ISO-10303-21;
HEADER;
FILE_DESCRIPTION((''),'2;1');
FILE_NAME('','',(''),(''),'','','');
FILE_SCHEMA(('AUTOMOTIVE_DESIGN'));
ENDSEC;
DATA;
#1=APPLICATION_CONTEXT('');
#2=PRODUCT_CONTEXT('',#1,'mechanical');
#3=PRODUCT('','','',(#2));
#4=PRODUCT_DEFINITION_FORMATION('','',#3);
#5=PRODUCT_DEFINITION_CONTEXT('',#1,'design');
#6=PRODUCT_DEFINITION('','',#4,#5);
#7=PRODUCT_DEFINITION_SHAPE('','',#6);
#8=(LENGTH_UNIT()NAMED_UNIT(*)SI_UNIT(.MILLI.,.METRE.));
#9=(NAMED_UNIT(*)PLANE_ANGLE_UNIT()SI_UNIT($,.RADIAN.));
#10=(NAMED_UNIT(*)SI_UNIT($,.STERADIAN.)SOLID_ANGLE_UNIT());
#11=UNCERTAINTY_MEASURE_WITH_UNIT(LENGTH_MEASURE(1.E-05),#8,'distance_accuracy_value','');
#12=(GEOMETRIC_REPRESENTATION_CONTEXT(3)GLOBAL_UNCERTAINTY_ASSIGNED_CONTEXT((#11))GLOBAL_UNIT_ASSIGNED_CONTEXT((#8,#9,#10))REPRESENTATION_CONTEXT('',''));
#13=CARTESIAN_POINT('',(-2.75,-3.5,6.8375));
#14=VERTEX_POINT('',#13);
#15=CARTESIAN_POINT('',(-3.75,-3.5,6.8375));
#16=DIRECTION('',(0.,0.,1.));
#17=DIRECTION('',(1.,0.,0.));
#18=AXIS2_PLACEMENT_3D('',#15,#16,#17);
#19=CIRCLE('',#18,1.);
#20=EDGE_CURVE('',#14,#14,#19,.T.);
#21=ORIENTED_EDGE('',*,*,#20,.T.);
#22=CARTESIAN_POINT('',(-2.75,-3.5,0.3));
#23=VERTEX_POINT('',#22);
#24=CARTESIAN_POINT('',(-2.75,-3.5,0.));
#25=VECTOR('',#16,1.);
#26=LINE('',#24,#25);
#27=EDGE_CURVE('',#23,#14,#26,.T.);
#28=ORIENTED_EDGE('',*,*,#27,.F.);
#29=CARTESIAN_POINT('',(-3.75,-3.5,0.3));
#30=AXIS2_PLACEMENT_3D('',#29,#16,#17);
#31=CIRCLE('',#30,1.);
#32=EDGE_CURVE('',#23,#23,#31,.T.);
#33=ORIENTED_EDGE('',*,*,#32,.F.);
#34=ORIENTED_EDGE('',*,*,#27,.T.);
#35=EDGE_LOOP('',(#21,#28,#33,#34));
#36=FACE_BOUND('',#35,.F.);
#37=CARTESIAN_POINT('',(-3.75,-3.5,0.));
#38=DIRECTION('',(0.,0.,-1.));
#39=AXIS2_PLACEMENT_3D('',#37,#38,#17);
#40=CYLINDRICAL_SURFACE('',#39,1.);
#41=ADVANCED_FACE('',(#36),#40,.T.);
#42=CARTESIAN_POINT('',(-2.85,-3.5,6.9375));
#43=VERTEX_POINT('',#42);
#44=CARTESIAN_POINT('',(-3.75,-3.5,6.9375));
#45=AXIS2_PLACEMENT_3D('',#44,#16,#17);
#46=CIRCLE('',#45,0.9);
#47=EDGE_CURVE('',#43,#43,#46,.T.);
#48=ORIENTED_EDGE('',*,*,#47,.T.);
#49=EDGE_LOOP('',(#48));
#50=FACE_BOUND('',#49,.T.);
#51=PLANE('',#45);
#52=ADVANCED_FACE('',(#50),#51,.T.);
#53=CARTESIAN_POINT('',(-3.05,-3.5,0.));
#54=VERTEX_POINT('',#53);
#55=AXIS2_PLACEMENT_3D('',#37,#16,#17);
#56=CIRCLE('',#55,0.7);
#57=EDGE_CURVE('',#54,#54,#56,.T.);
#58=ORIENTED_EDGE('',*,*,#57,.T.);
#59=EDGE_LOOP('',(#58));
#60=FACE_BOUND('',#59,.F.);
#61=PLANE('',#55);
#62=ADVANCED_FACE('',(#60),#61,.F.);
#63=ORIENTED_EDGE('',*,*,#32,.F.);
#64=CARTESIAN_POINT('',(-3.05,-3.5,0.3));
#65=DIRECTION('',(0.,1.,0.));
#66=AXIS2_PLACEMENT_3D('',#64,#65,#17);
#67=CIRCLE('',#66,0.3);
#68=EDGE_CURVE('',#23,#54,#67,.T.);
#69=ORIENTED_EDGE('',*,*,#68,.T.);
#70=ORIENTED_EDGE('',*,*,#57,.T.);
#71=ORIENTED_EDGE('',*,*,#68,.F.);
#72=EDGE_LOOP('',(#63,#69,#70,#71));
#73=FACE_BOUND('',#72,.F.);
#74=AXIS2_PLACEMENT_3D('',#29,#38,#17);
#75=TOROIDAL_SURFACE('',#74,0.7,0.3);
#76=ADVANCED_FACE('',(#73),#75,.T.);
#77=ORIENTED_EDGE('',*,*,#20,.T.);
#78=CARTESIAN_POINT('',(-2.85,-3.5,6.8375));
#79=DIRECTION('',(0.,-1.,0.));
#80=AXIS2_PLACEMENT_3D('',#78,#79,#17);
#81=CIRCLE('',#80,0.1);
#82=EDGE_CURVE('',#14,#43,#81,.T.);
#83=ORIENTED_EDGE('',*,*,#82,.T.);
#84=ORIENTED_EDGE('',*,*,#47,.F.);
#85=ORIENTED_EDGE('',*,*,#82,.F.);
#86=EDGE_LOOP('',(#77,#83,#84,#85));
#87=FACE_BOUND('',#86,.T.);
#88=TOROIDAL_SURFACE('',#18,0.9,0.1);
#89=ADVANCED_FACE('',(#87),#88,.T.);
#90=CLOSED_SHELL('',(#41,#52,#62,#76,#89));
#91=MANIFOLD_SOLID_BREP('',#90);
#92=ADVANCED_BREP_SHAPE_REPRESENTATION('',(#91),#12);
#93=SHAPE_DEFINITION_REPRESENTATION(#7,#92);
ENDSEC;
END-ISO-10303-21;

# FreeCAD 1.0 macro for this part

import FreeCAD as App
import Part
import Sketcher
from FreeCAD import Vector
Q = App.Units.Quantity


def edges_at(feature, points):
    """Names of the edges that pass closest to the given points."""
    edges = feature.Shape.Edges
    near = lambda p: min(range(len(edges)), key=lambda i: edges[i].distToShape(Part.Vertex(*p))[0])
    return sorted({f"Edge{near(p) + 1}" for p in points})

doc = App.newDocument("Part")
body = doc.addObject("PartDesign::Body", "Body")

sketch1 = body.newObject("Sketcher::SketchObject", "Sketch")
sketch1.AttachmentSupport = (doc.getObject("XY_Plane"), [""])
sketch1.MapMode = "FlatFace"
sketch1.addGeometry(Part.Circle(Vector(-3.8, -3.5, 0), Vector(0, 0, 1), 1), False)
sketch1.addConstraint([
    Sketcher.Constraint("Diameter", 0, Q("2 mm")),
    Sketcher.Constraint("DistanceY", 0, 3, -1, 1, Q("3.5 mm")),
    Sketcher.Constraint("DistanceX", 0, 3, -1, 1, Q("3.75 mm")),
])
pad1 = body.newObject("PartDesign::Pad", "Pad")
pad1.Profile = sketch1
pad1.Length = 6.9375
doc.recompute()

fillet = body.newObject("PartDesign::Fillet", "Fillet")
fillet.Base = (pad1, edges_at(pad1, [(-4.75, -3.5, 6.938)]))
fillet.Radius = 0.1
doc.recompute()

fillet2 = body.newObject("PartDesign::Fillet", "Fillet001")
fillet2.Base = (fillet, edges_at(fillet, [(-4.75, -3.5, 0)]))
fillet2.Radius = 0.3

doc.recompute()
